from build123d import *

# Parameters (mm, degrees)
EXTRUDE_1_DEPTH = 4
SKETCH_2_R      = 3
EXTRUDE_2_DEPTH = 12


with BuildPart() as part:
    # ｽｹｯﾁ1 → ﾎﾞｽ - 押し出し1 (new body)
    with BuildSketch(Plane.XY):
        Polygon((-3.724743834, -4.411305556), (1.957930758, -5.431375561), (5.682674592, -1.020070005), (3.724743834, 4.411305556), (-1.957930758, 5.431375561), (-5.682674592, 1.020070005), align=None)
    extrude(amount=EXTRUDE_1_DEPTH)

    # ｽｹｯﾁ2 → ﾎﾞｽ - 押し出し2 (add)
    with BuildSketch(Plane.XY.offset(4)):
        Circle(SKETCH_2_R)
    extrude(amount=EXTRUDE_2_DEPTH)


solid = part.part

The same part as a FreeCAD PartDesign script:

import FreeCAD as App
import Part
import Sketcher

V = App.Vector
Q = App.Units.Quantity


def add_polygon(sketch, points):
    """Adds a closed chain of lines whose ends are joined by coincident constraints."""
    first, n = sketch.GeometryCount, len(points)
    for a, b in zip(points, points[1:] + points[:1]):
        sketch.addGeometry(Part.LineSegment(App.Vector(*a, 0), App.Vector(*b, 0)), False)
    for i in range(n):
        sketch.addConstraint(Sketcher.Constraint("Coincident", first + i, 2, first + (i + 1) % n, 1))

doc = App.newDocument("Part")
body = doc.addObject("PartDesign::Body", "Body")

sketch1 = doc.addObject("Sketcher::SketchObject", "Sketch")
body.addObject(sketch1)
sketch1.AttachmentSupport = (doc.XY_Plane, [""])
sketch1.MapMode = "FlatFace"
add_polygon(sketch1, [(-4, -4), (2, -5), (6, -1), (4, 4), (-2, 5), (-6, 1)])
sketch1.addConstraint(Sketcher.Constraint("Symmetric", 0, 2, 3, 2, -1, 1))
sketch1.addConstraint(Sketcher.Constraint("Symmetric", 1, 2, 4, 2, -1, 1))
sketch1.addConstraint(Sketcher.Constraint("Symmetric", 2, 2, 5, 2, -1, 1))
sketch1.addConstraint(Sketcher.Constraint("Equal", 0, 1))
sketch1.addConstraint(Sketcher.Constraint("Equal", 1, 2))
sketch1.addConstraint(Sketcher.Constraint("DistanceX", -1, 1, 0, 2, Q("1.957931 mm")))
sketch1.addConstraint(Sketcher.Constraint("DistanceY", 1, 2, -1, 1, Q("1.02007 mm")))
sketch1.addConstraint(Sketcher.Constraint("DistanceX", 2, 2, 1, 2, Q("1.957931 mm")))
sketch1.addConstraint(Sketcher.Constraint("DistanceY", 0, 2, 2, 2, Q("9.842681 mm")))
pad1 = doc.addObject("PartDesign::Pad", "Pad")
body.addObject(pad1)
pad1.Profile = sketch1
pad1.Length = 4

sketch2 = doc.addObject("Sketcher::SketchObject", "Sketch001")
body.addObject(sketch2)
sketch2.AttachmentSupport = (doc.XY_Plane, [""])
sketch2.MapMode = "FlatFace"
sketch2.AttachmentOffset = App.Placement(V(0, 0, 4), App.Rotation())
sketch2.addGeometry(Part.Circle(V(0, 0, 0), V(0, 0, 1), 3), False)
sketch2.addConstraint(Sketcher.Constraint("Coincident", 0, 3, -1, 1))
sketch2.addConstraint(Sketcher.Constraint("Diameter", 0, Q("6 mm")))
pad2 = doc.addObject("PartDesign::Pad", "Pad001")
body.addObject(pad2)
pad2.Profile = sketch2
pad2.Length = 12

doc.recompute()
